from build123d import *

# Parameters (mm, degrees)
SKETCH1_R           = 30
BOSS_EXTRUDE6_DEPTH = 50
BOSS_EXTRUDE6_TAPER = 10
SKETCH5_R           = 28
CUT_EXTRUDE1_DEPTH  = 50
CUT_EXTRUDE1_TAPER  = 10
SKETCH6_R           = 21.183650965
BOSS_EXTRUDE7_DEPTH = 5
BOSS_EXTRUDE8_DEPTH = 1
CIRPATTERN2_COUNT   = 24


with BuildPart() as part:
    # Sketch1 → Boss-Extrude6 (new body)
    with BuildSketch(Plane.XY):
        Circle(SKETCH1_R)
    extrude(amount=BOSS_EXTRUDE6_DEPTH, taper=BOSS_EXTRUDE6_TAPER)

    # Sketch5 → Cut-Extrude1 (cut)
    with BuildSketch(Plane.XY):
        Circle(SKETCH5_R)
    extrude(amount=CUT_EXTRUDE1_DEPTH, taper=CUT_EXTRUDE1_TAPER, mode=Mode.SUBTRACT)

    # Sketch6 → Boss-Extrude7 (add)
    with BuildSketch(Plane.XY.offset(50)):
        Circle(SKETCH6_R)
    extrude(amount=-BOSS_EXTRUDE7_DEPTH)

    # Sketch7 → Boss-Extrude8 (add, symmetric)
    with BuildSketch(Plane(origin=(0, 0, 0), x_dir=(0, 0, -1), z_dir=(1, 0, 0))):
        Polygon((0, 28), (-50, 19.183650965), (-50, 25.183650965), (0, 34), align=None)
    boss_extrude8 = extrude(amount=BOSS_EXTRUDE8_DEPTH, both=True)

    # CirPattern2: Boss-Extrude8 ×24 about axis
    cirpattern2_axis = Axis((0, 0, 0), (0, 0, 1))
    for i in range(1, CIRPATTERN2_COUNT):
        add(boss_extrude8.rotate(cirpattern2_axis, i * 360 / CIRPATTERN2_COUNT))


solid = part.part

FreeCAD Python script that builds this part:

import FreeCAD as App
import Part
import Sketcher
from FreeCAD import Vector
Q = App.Units.Quantity

doc = App.newDocument("Part")
body = doc.addObject("PartDesign::Body", "Body")

# Sketch on XY plane
sketch1 = doc.addObject("Sketcher::SketchObject", "Sketch")
body.addObject(sketch1)
sketch1.AttachmentSupport = (doc.XY_Plane, [""])
sketch1.MapMode = "FlatFace"
sketch1.addGeometry(Part.Circle(Vector(0, 0, 0), Vector(0, 0, 1), 30), False)
sketch1.addConstraint([
    Sketcher.Constraint("Coincident", 0, 3, -1, 1),
    Sketcher.Constraint("Diameter", 0, Q("60 mm")),
])
pad1 = doc.addObject("PartDesign::Pad", "Pad")
body.addObject(pad1)
pad1.Profile = sketch1
pad1.Length = 50
pad1.TaperAngle = -10

# Sketch on XY plane
sketch2 = doc.addObject("Sketcher::SketchObject", "Sketch001")
body.addObject(sketch2)
sketch2.AttachmentSupport = (doc.XY_Plane, [""])
sketch2.MapMode = "FlatFace"
sketch2.addGeometry(Part.Circle(Vector(0, 0, 0), Vector(0, 0, 1), 28), False)
sketch2.addConstraint([
    Sketcher.Constraint("Coincident", 0, 3, -1, 1),
    Sketcher.Constraint("Diameter", 0, Q("56 mm")),
])
pocket1 = doc.addObject("PartDesign::Pocket", "Pocket")
body.addObject(pocket1)
pocket1.Profile = sketch2
pocket1.Length = 50
pocket1.Reversed = True
pocket1.TaperAngle = -10

# Sketch on XY plane
sketch3 = doc.addObject("Sketcher::SketchObject", "Sketch002")
body.addObject(sketch3)
sketch3.AttachmentSupport = (doc.XY_Plane, [""])
sketch3.MapMode = "FlatFace"
sketch3.AttachmentOffset = App.Placement(Vector(0, 0, 50), App.Rotation())
sketch3.addGeometry(Part.Circle(Vector(0, 0, 0), Vector(0, 0, 1), 21), False)
sketch3.addConstraint([
    Sketcher.Constraint("Coincident", 0, 3, -1, 1),
    Sketcher.Constraint("Diameter", 0, Q("42.367302 mm")),
])
pad2 = doc.addObject("PartDesign::Pad", "Pad001")
body.addObject(pad2)
pad2.Profile = sketch3
pad2.Length = 5
pad2.Reversed = True

# Sketch on YZ plane
sketch4 = doc.addObject("Sketcher::SketchObject", "Sketch003")
body.addObject(sketch4)
sketch4.AttachmentSupport = (doc.YZ_Plane, [""])
sketch4.MapMode = "FlatFace"
sketch4.addGeometry([
    Part.LineSegment(Vector(19, 50, 0), Vector(28, 0, 0)),
    Part.LineSegment(Vector(28, 0, 0), Vector(34, 0, 0)),
    Part.LineSegment(Vector(34, 0, 0), Vector(25, 50, 0)),
    Part.LineSegment(Vector(25, 50, 0), Vector(19, 50, 0)),
], False)
sketch4.addConstraint([
    Sketcher.Constraint("Coincident", 0, 2, 1, 1),
    Sketcher.Constraint("Coincident", 1, 2, 2, 1),
    Sketcher.Constraint("Coincident", 2, 2, 3, 1),
    Sketcher.Constraint("Coincident", 3, 2, 0, 1),
    Sketcher.Constraint("Horizontal", 1),
    Sketcher.Constraint("Horizontal", 3),
    Sketcher.Constraint("PointOnObject", 0, 2, -1),
    Sketcher.Constraint("Parallel", 0, 2),
    Sketcher.Constraint("DistanceX", 1, 1, 1, 2, Q("6 mm")),
    Sketcher.Constraint("Angle", 0, Q("-80 deg")),
    Sketcher.Constraint("DistanceX", -1, 1, 0, 2, Q("28 mm")),
    Sketcher.Constraint("DistanceY", -1, 1, 2, 2, Q("50 mm")),
])
pad3 = doc.addObject("PartDesign::Pad", "Pad002")
body.addObject(pad3)
pad3.Profile = sketch4
pad3.Length = 2
pad3.Midplane = True
doc.recompute()

polarpattern = doc.addObject("PartDesign::PolarPattern", "PolarPattern")
body.addObject(polarpattern)
polarpattern.Originals = [pad3]
polarpattern.Axis = (doc.Z_Axis, [""])
polarpattern.Angle = 360
polarpattern.Occurrences = 24
body.Tip = polarpattern

doc.recompute()
